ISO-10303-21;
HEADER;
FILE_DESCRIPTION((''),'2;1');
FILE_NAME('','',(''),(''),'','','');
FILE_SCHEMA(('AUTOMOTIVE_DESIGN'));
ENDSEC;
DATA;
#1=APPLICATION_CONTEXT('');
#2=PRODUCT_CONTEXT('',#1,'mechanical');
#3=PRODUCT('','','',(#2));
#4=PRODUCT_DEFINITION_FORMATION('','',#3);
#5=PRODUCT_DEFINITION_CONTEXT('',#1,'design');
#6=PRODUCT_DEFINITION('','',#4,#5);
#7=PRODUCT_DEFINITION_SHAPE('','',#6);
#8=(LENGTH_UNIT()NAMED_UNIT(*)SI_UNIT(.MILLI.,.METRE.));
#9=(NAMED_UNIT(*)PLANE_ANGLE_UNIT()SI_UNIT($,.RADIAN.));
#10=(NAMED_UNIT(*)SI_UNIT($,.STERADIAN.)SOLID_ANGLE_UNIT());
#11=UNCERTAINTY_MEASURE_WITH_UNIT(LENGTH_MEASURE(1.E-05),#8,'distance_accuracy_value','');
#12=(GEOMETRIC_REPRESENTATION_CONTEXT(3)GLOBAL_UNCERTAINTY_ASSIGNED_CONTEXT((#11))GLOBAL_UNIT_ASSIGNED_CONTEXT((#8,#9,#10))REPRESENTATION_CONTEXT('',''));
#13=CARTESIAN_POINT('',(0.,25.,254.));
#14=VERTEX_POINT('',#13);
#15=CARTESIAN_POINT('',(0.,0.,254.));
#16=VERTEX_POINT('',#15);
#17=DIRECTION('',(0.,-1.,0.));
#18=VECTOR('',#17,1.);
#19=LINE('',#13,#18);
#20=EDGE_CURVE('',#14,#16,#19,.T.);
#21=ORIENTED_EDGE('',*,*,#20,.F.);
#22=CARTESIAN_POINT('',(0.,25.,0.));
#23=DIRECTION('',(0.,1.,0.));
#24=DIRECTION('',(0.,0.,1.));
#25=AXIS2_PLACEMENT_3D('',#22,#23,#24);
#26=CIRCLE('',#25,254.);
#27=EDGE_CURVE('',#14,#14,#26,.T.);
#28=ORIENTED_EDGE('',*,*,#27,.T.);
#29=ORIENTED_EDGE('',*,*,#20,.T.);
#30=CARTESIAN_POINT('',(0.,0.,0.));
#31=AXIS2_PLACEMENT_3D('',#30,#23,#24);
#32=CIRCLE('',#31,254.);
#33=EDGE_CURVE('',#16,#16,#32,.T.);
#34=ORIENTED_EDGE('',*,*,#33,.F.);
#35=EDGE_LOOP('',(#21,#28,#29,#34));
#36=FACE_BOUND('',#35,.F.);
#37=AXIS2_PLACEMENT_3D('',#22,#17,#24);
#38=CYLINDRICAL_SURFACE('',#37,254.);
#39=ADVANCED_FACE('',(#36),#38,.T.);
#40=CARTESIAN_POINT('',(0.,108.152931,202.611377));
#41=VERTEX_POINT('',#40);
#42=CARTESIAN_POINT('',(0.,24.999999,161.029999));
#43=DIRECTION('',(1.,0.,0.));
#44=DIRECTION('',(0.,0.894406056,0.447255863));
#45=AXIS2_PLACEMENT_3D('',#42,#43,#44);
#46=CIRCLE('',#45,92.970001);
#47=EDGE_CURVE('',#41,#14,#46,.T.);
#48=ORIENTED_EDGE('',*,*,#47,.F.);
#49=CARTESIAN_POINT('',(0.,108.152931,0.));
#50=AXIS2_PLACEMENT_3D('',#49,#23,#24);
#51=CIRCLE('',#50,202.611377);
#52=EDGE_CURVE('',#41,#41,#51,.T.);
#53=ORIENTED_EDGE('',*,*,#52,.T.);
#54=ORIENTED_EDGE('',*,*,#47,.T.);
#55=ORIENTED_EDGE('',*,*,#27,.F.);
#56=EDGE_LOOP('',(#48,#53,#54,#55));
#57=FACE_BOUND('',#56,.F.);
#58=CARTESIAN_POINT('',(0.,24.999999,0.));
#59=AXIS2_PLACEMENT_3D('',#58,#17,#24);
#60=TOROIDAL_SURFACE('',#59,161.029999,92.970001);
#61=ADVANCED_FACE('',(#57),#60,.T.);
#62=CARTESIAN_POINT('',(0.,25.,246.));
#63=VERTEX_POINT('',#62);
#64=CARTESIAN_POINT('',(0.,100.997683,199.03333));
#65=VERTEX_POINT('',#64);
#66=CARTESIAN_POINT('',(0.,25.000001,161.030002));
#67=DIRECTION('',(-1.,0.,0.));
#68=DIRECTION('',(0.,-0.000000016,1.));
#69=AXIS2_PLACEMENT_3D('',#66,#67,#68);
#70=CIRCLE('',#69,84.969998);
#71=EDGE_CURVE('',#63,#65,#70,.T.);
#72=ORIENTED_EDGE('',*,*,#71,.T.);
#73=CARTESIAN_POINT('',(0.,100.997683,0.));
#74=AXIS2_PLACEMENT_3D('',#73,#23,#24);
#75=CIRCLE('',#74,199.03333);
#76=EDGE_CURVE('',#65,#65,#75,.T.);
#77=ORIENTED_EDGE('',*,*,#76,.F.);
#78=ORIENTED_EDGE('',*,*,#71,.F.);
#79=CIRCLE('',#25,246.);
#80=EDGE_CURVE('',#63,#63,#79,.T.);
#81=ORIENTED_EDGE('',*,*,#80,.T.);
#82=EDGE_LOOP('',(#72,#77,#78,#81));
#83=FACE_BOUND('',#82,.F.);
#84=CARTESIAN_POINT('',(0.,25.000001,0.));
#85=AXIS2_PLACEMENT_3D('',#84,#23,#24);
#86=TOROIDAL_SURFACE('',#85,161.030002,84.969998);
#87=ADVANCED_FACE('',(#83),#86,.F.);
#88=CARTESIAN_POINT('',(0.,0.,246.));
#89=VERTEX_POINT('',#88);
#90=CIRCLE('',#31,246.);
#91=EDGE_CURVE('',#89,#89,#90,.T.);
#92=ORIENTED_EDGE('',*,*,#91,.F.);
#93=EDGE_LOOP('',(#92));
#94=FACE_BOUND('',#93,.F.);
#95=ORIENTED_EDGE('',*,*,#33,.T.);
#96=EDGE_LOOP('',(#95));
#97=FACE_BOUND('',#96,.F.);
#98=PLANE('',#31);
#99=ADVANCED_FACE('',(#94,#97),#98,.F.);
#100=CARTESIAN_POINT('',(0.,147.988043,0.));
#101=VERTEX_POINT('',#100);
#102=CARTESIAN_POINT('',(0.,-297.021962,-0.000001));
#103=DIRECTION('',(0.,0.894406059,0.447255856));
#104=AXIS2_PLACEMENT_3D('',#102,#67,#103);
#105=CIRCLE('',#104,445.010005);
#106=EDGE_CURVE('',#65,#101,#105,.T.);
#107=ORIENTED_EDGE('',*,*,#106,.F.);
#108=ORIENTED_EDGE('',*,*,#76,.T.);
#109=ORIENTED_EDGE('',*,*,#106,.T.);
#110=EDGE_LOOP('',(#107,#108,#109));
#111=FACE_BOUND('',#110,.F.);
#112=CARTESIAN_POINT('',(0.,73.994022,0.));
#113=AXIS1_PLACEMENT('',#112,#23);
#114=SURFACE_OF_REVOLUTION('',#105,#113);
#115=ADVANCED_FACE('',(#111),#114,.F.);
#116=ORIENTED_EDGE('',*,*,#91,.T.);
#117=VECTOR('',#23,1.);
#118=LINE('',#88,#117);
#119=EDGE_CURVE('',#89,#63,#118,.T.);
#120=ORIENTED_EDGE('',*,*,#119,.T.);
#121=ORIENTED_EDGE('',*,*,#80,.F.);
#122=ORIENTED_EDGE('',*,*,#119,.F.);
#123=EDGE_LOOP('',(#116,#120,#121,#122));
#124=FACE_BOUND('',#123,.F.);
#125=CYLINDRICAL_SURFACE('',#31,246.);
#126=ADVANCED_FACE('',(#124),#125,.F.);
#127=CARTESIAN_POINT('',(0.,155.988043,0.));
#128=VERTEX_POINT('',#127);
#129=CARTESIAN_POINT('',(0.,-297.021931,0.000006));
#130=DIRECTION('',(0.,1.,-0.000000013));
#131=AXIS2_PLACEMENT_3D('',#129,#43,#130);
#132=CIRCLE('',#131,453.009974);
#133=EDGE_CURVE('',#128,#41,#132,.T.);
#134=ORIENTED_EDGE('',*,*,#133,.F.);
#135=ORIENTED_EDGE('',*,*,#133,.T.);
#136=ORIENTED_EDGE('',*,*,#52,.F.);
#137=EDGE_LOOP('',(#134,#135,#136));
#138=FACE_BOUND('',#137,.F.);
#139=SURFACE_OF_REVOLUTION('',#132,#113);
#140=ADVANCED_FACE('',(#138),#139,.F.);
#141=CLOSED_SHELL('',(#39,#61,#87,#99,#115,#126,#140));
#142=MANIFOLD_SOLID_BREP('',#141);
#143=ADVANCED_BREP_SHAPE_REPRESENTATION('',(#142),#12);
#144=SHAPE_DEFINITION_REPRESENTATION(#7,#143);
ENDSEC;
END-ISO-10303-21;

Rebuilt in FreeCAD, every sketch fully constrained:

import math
import FreeCAD as App
import Part
import Sketcher
from FreeCAD import Vector
Q = App.Units.Quantity

doc = App.newDocument("Part")
body = doc.addObject("PartDesign::Body", "Body")

# Sketch on YZ plane
sketch1 = body.newObject("Sketcher::SketchObject", "Sketch")
sketch1.AttachmentSupport = (doc.getObject("YZ_Plane"), [""])
sketch1.MapMode = "FlatFace"
sketch1.addGeometry(Part.LineSegment(Vector(0, 254, 0), Vector(0, 246, 0)), False)
sketch1.addGeometry(Part.LineSegment(Vector(0, 246, 0), Vector(25, 246, 0)), False)
sketch1.addGeometry(Part.ArcOfCircle(Part.Circle(Vector(25, 161, 0), Vector(0, 0, 1), 85), math.radians(27), math.radians(90)), False)
sketch1.addGeometry(Part.ArcOfCircle(Part.Circle(Vector(-297, 0, 0), Vector(0, 0, 1), 445), math.radians(0), math.radians(27)), False)
sketch1.addGeometry(Part.LineSegment(Vector(148, 0, 0), Vector(156, 0, 0)), False)
sketch1.addGeometry(Part.ArcOfCircle(Part.Circle(Vector(-297, 0, 0), Vector(0, 0, 1), 453), math.radians(0), math.radians(27)), False)
sketch1.addGeometry(Part.ArcOfCircle(Part.Circle(Vector(25, 161, 0), Vector(0, 0, 1), 93), math.radians(27), math.radians(90)), False)
sketch1.addGeometry(Part.LineSegment(Vector(25, 254, 0), Vector(0, 254, 0)), False)
sketch1.addConstraint(Sketcher.Constraint("Coincident", 0, 2, 1, 1))
sketch1.addConstraint(Sketcher.Constraint("Tangent", 1, 2, 2, 2))
sketch1.addConstraint(Sketcher.Constraint("Tangent", 2, 1, 3, 2))
sketch1.addConstraint(Sketcher.Constraint("Coincident", 3, 1, 4, 1))
sketch1.addConstraint(Sketcher.Constraint("Coincident", 4, 2, 5, 1))
sketch1.addConstraint(Sketcher.Constraint("Tangent", 5, 2, 6, 1))
sketch1.addConstraint(Sketcher.Constraint("Tangent", 6, 2, 7, 1))
sketch1.addConstraint(Sketcher.Constraint("Coincident", 7, 2, 0, 1))
sketch1.addConstraint(Sketcher.Constraint("Vertical", 0))
sketch1.addConstraint(Sketcher.Constraint("Horizontal", 1))
sketch1.addConstraint(Sketcher.Constraint("Horizontal", 4))
sketch1.addConstraint(Sketcher.Constraint("Horizontal", 7))
sketch1.addConstraint(Sketcher.Constraint("Coincident", 6, 3, 2, 3))
sketch1.addConstraint(Sketcher.Constraint("PointOnObject", 3, 3, -1))
sketch1.addConstraint(Sketcher.Constraint("PointOnObject", 0, 2, -2))
sketch1.addConstraint(Sketcher.Constraint("PointOnObject", 4, 2, -1))
sketch1.addConstraint(Sketcher.Constraint("Equal", 4, 0))
sketch1.addConstraint(Sketcher.Constraint("DistanceX", 1, 1, 1, 2, Q("25 mm")))
sketch1.addConstraint(Sketcher.Constraint("DistanceX", 4, 1, 4, 2, Q("8 mm")))
sketch1.addConstraint(Sketcher.Constraint("Radius", 6, Q("92.970001 mm")))
sketch1.addConstraint(Sketcher.Constraint("DistanceY", -1, 1, 0, 2, Q("246 mm")))
sketch1.addConstraint(Sketcher.Constraint("Radius", 3, Q("445.010005 mm")))
sketch1.addConstraint(Sketcher.Constraint("Radius", 5, Q("453.009974 mm")))
revolution = body.newObject("PartDesign::Revolution", "Revolution")
revolution.Profile = sketch1
revolution.ReferenceAxis = (sketch1, ["H_Axis"])
revolution.Angle = 360

doc.recompute()
